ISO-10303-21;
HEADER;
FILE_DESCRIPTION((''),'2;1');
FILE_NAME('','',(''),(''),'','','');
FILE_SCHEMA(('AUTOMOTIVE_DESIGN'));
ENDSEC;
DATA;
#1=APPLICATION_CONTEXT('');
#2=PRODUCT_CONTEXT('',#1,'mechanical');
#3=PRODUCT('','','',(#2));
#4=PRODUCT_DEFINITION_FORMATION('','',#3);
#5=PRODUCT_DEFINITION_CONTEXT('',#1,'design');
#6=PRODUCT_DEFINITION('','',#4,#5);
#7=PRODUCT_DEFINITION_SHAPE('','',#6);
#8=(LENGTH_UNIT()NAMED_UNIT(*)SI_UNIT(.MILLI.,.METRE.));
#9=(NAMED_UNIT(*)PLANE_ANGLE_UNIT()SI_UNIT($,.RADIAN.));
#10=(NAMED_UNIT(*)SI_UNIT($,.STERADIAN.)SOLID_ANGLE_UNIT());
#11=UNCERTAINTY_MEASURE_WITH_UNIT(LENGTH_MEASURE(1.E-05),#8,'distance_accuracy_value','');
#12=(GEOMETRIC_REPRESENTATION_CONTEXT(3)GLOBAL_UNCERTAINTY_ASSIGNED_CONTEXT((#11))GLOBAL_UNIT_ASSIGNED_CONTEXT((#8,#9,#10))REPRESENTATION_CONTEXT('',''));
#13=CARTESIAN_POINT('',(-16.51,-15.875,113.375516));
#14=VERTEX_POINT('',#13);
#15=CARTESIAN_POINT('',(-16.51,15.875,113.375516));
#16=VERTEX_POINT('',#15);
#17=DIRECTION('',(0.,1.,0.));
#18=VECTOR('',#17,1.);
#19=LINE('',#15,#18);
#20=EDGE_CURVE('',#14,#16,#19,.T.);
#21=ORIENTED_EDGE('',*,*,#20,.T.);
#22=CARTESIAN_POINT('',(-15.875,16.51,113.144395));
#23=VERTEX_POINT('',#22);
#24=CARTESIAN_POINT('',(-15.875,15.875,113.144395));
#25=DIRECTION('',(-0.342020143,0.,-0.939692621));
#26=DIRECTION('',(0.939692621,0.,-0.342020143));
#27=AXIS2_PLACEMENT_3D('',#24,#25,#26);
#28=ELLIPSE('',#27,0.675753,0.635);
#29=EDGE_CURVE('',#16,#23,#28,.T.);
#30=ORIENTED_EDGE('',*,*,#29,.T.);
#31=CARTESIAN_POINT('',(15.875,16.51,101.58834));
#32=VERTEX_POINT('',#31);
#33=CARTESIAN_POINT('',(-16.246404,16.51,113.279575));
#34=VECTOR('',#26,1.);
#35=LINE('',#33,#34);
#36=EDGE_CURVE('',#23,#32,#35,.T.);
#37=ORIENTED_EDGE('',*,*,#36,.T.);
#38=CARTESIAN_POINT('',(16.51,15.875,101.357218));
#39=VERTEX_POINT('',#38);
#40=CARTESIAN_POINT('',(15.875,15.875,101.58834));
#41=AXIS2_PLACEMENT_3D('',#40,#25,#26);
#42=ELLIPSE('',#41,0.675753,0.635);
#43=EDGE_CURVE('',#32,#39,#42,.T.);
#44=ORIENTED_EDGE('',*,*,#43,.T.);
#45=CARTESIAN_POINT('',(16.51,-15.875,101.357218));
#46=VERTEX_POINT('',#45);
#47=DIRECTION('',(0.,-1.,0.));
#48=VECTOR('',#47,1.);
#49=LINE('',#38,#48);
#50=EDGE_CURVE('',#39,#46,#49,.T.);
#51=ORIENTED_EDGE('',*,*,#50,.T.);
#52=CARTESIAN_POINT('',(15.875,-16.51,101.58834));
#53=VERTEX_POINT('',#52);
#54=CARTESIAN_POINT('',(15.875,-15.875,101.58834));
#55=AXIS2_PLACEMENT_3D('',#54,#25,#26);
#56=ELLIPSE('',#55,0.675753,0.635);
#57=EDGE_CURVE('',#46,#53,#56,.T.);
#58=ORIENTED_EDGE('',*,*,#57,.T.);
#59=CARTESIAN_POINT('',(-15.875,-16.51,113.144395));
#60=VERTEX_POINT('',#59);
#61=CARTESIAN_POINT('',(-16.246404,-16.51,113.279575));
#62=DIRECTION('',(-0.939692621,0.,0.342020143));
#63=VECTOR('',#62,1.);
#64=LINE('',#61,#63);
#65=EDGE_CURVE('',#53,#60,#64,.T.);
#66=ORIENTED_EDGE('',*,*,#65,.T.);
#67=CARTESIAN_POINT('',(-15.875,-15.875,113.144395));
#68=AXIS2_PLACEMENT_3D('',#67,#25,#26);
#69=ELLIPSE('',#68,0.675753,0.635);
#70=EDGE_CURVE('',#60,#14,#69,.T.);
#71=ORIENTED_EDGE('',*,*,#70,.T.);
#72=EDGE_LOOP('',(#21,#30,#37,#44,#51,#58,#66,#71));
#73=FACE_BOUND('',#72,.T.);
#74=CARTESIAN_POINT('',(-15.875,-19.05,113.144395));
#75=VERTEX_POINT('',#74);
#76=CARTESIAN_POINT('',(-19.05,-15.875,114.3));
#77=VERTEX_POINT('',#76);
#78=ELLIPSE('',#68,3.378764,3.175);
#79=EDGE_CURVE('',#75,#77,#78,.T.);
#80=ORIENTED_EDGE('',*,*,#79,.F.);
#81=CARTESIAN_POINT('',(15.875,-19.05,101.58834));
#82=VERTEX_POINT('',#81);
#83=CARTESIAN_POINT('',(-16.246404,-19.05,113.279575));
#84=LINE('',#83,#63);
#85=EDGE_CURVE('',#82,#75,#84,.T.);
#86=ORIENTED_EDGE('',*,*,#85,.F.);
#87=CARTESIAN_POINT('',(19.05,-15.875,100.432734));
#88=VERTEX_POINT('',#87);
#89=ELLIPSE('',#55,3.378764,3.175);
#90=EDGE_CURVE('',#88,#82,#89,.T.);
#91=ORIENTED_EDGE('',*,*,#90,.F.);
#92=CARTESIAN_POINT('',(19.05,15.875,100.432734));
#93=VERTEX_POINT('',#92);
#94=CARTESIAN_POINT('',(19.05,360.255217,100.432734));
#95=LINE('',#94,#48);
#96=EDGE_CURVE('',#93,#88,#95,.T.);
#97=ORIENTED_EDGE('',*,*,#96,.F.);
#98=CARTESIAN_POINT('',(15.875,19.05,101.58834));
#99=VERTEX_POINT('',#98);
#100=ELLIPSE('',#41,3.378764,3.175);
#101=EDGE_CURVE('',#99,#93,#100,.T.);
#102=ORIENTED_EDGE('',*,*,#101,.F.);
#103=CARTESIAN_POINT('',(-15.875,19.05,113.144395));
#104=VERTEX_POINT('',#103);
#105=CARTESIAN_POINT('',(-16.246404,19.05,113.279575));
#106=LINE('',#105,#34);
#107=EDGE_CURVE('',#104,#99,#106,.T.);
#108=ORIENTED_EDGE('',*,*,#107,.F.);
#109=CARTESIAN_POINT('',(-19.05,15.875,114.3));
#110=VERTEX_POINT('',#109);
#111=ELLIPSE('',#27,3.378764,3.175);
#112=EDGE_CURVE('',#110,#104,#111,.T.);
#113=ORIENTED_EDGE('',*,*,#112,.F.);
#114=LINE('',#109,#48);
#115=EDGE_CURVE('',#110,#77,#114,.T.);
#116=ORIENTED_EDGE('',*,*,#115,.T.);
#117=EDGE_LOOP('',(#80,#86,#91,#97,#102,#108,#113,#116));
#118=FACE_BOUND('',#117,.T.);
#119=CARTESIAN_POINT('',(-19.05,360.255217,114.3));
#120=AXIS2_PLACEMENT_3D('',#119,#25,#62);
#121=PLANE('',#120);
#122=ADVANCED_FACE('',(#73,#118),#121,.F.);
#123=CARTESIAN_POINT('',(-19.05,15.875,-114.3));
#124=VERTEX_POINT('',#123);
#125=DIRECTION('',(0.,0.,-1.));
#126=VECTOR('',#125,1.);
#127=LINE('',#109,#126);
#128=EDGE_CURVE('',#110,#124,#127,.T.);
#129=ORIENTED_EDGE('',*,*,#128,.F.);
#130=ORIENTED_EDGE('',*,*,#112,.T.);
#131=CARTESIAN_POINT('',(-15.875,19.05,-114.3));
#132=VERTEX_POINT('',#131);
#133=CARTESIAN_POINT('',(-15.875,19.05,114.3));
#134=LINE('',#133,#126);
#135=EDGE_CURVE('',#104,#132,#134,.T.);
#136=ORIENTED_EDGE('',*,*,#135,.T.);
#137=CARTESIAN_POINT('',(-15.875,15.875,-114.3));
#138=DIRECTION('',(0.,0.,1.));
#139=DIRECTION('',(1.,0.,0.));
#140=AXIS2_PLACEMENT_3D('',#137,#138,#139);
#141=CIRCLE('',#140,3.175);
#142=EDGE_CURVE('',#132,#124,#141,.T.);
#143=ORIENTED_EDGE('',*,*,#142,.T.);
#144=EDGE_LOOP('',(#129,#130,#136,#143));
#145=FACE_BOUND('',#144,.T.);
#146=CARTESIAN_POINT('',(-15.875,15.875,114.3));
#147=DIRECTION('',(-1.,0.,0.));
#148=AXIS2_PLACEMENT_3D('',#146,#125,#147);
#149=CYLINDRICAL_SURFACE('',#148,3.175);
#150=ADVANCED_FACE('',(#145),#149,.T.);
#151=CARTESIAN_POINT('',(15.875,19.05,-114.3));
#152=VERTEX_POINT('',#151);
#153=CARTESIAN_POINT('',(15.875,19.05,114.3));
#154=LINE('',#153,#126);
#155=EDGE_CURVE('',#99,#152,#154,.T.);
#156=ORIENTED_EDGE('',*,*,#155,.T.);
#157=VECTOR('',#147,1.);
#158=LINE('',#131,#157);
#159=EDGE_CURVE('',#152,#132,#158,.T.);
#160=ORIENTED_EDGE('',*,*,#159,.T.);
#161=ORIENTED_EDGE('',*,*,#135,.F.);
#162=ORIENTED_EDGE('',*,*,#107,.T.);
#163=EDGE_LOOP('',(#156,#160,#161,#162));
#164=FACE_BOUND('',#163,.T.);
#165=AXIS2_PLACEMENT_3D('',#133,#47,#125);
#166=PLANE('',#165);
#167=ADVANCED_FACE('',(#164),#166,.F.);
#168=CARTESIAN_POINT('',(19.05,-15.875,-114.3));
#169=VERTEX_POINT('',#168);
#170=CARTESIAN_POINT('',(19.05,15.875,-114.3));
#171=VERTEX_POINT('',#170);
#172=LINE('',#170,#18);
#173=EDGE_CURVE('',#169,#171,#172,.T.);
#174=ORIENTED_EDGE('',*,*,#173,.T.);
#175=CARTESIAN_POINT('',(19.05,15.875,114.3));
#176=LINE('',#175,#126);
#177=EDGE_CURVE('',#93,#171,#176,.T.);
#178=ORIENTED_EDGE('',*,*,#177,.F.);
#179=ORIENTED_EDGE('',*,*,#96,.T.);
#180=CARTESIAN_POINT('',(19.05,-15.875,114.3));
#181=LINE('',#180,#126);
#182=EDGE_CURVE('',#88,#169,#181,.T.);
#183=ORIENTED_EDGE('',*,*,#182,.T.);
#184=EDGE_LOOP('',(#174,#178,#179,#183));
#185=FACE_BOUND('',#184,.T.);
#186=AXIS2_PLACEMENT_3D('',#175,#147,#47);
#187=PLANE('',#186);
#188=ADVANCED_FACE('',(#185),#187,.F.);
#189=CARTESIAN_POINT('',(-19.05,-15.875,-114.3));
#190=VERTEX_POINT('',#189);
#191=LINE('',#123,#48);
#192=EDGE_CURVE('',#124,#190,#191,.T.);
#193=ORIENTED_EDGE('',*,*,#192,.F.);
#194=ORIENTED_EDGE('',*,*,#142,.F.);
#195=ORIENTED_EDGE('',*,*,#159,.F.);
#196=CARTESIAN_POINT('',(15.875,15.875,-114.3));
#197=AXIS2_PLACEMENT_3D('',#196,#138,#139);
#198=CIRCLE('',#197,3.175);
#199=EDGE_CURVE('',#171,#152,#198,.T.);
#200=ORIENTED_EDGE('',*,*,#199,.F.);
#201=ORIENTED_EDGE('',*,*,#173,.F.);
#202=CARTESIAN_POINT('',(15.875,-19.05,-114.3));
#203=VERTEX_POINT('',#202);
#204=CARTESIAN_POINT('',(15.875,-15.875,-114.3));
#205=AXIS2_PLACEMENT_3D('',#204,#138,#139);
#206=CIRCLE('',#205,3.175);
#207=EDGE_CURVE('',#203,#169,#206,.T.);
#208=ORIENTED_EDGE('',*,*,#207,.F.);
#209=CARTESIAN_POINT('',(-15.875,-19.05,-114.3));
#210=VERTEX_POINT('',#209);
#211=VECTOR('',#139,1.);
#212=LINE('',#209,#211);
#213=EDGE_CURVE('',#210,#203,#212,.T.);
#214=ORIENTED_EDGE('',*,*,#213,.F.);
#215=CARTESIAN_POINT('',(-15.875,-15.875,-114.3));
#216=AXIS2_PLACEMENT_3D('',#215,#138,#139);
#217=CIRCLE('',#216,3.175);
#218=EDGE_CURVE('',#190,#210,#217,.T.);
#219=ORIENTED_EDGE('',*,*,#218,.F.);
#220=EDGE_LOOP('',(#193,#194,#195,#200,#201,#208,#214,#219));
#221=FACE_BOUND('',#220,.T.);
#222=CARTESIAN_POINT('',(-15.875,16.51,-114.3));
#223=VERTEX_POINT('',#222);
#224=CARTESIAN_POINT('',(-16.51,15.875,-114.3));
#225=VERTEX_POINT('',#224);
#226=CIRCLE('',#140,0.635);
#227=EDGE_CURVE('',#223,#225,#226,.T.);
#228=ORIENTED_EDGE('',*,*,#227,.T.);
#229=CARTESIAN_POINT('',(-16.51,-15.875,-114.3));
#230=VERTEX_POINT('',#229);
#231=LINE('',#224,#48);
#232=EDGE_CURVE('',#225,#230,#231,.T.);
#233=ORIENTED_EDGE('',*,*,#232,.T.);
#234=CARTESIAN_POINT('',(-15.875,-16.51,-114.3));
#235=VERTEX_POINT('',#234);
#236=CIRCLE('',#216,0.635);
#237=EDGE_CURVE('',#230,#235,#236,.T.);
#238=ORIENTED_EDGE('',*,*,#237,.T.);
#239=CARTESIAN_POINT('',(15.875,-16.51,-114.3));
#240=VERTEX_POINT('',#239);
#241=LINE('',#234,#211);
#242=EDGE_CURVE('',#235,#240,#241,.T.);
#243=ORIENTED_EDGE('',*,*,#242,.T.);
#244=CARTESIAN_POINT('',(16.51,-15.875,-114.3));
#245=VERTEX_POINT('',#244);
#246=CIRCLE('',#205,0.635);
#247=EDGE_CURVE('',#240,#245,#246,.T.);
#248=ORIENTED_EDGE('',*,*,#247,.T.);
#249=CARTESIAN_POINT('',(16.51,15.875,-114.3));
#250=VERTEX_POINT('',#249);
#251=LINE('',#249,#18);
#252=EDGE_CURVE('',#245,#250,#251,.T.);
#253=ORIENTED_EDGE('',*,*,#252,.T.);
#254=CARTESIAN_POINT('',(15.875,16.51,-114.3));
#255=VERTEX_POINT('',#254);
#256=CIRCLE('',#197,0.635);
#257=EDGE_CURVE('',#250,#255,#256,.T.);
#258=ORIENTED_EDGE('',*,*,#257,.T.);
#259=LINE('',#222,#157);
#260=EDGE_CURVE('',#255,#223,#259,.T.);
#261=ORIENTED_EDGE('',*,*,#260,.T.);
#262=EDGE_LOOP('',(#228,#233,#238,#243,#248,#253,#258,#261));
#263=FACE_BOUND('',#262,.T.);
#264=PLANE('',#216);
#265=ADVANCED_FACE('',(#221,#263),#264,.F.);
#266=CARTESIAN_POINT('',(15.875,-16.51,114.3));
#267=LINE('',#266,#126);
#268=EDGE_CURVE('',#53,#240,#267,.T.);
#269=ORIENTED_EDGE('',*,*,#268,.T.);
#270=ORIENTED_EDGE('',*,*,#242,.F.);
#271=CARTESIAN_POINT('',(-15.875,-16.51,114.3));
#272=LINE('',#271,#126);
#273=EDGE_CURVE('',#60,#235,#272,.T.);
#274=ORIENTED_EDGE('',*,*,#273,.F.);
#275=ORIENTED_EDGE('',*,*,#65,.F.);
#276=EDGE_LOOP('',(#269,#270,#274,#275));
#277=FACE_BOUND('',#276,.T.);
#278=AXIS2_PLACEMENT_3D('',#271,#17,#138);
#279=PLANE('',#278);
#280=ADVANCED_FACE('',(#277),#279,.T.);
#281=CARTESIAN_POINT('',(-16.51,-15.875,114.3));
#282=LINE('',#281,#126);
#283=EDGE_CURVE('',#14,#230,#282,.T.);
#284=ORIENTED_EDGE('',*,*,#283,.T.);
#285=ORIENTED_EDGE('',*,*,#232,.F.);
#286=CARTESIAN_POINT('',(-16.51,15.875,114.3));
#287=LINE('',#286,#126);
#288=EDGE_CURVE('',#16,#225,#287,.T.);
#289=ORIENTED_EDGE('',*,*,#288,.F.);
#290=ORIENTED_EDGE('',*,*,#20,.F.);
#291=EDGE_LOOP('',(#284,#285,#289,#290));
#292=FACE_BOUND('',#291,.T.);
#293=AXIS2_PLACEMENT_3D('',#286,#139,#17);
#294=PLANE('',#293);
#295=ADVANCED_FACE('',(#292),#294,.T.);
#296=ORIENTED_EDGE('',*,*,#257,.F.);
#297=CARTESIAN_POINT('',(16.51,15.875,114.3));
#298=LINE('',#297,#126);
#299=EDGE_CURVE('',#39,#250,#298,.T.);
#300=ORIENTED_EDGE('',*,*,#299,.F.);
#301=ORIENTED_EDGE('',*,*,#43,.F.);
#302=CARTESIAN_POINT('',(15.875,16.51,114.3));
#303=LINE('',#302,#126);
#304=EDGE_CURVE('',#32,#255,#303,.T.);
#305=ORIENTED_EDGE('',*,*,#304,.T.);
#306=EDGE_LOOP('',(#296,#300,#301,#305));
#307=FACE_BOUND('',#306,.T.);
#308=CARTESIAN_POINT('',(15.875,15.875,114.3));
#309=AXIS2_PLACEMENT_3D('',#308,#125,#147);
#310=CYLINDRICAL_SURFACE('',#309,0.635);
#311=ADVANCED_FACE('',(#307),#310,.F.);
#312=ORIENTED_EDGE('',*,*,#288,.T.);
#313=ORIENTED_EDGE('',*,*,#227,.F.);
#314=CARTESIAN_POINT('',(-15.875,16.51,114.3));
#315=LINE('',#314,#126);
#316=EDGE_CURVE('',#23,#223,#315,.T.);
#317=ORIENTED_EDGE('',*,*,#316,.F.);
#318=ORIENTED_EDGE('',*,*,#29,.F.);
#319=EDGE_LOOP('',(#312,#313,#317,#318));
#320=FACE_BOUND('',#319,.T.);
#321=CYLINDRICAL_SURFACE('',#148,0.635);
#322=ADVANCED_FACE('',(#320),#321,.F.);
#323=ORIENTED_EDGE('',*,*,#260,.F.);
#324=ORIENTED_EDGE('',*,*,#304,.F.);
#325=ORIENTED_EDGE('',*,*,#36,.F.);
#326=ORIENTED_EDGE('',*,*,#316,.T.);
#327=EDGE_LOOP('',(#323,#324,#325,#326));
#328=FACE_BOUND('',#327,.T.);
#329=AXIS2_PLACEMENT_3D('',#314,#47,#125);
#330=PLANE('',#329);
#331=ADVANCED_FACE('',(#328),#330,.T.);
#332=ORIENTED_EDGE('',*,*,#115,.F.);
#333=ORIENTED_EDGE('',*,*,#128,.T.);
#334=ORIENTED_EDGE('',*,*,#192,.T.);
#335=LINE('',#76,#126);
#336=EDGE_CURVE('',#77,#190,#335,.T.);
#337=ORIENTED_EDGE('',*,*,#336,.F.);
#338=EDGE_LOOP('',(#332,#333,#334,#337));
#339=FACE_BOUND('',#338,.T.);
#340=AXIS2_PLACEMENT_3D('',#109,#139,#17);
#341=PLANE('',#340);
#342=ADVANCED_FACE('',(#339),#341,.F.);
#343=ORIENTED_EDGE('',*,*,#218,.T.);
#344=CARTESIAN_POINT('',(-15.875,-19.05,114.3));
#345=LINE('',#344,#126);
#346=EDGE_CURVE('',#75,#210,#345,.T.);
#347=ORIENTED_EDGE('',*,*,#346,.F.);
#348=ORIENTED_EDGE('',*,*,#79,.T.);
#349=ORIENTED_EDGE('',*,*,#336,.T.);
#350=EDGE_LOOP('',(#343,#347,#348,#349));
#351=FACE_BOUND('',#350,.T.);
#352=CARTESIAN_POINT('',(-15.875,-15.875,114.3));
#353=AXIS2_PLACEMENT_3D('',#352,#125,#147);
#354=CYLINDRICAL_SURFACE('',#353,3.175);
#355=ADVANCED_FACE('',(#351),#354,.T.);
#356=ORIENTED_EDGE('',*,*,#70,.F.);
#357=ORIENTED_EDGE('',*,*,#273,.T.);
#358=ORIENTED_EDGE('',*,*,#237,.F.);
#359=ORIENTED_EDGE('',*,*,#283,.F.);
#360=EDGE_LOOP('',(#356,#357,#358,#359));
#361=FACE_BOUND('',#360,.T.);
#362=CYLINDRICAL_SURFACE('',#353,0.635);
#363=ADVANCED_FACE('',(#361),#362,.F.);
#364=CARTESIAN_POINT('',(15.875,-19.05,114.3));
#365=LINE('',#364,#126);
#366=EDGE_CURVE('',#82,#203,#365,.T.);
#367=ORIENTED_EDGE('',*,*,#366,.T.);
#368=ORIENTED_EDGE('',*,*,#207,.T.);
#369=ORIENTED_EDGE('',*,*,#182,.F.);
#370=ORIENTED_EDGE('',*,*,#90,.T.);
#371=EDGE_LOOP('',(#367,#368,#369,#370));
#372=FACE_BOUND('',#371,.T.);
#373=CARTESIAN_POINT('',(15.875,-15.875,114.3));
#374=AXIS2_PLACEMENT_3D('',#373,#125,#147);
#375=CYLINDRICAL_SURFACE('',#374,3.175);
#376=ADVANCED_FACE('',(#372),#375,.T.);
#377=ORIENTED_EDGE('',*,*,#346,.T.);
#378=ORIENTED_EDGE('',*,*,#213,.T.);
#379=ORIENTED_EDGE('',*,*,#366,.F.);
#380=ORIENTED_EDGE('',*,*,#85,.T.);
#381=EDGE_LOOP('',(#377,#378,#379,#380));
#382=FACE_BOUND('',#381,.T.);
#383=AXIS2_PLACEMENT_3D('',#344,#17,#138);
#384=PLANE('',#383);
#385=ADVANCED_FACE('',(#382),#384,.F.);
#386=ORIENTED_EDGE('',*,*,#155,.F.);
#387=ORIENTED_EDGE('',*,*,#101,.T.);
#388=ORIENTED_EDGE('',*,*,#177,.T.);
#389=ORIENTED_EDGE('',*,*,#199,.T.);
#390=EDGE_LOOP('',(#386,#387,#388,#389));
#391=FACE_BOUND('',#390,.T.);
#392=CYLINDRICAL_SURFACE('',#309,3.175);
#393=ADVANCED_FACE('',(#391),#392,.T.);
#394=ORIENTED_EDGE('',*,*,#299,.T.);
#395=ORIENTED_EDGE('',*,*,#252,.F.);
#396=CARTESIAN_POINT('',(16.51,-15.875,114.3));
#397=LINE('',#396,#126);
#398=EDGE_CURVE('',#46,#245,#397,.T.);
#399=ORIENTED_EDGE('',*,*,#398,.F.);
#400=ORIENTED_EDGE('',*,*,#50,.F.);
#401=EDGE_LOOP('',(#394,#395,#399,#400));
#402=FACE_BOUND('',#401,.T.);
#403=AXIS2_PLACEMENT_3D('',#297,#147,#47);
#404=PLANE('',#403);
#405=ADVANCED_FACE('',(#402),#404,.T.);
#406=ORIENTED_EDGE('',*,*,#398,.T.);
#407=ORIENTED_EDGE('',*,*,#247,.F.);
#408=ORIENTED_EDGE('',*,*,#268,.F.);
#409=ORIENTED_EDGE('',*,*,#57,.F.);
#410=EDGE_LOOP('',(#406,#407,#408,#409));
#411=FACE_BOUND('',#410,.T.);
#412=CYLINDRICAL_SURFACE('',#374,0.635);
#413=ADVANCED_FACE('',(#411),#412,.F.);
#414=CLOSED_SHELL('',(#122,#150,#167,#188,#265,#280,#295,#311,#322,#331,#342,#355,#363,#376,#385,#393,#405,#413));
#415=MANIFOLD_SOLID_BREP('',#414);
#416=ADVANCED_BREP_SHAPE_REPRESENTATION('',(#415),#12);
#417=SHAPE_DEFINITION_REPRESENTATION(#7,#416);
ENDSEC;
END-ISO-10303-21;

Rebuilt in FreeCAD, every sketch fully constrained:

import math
import FreeCAD as App
import Part
import Sketcher
Q = App.Units.Quantity

doc = App.newDocument("Part")
body = doc.addObject("PartDesign::Body", "Body")

# Sketch on XY plane
sketch1 = doc.addObject("Sketcher::SketchObject", "Sketch")
body.addObject(sketch1)
sketch1.AttachmentSupport = (doc.XY_Plane, [""])
sketch1.MapMode = "FlatFace"
sketch1.addGeometry([
    Part.LineSegment(App.Vector(15.9, 19.1, 0), App.Vector(-15.9, 19.1, 0)),  # 0
    Part.ArcOfCircle(Part.Circle(App.Vector(-15.9, 15.9, 0), App.Vector(0, 0, 1), 3.2), math.radians(90), math.radians(180)),  # 1
    Part.LineSegment(App.Vector(-19.1, 15.9, 0), App.Vector(-19.1, -15.9, 0)),  # 2
    Part.ArcOfCircle(Part.Circle(App.Vector(-15.9, -15.9, 0), App.Vector(0, 0, 1), 3.2), math.radians(-180), math.radians(-90)),  # 3
    Part.LineSegment(App.Vector(-15.9, -19.1, 0), App.Vector(15.9, -19.1, 0)),  # 4
    Part.ArcOfCircle(Part.Circle(App.Vector(15.9, -15.9, 0), App.Vector(0, 0, 1), 3.2), math.radians(-90), math.radians(0)),  # 5
    Part.LineSegment(App.Vector(19.1, -15.9, 0), App.Vector(19.1, 15.9, 0)),  # 6
    Part.ArcOfCircle(Part.Circle(App.Vector(15.9, 15.9, 0), App.Vector(0, 0, 1), 3.2), math.radians(0), math.radians(90)),  # 7
    Part.LineSegment(App.Vector(-15.9, 16.5, 0), App.Vector(15.9, 16.5, 0)),  # 8
    Part.ArcOfCircle(Part.Circle(App.Vector(15.9, 15.9, 0), App.Vector(0, 0, 1), 0.6), math.radians(0), math.radians(90)),  # 9
    Part.LineSegment(App.Vector(16.5, 15.9, 0), App.Vector(16.5, -15.9, 0)),  # 10
    Part.ArcOfCircle(Part.Circle(App.Vector(15.9, -15.9, 0), App.Vector(0, 0, 1), 0.6), math.radians(-90), math.radians(0)),  # 11
    Part.LineSegment(App.Vector(15.9, -16.5, 0), App.Vector(-15.9, -16.5, 0)),  # 12
    Part.ArcOfCircle(Part.Circle(App.Vector(-15.9, -15.9, 0), App.Vector(0, 0, 1), 0.6), math.radians(180), math.radians(270)),  # 13
    Part.LineSegment(App.Vector(-16.5, -15.9, 0), App.Vector(-16.5, 15.9, 0)),  # 14
    Part.ArcOfCircle(Part.Circle(App.Vector(-15.9, 15.9, 0), App.Vector(0, 0, 1), 0.6), math.radians(90), math.radians(180)),  # 15
], False)
sketch1.addConstraint([
    Sketcher.Constraint("Tangent", 0, 2, 1, 1),
    Sketcher.Constraint("Tangent", 1, 2, 2, 1),
    Sketcher.Constraint("Tangent", 2, 2, 3, 1),
    Sketcher.Constraint("Tangent", 3, 2, 4, 1),
    Sketcher.Constraint("Tangent", 4, 2, 5, 1),
    Sketcher.Constraint("Tangent", 5, 2, 6, 1),
    Sketcher.Constraint("Tangent", 6, 2, 7, 1),
    Sketcher.Constraint("Tangent", 7, 2, 0, 1),
    Sketcher.Constraint("Tangent", 8, 2, 9, 2),
    Sketcher.Constraint("Tangent", 9, 1, 10, 1),
    Sketcher.Constraint("Tangent", 10, 2, 11, 2),
    Sketcher.Constraint("Tangent", 11, 1, 12, 1),
    Sketcher.Constraint("Tangent", 12, 2, 13, 2),
    Sketcher.Constraint("Tangent", 13, 1, 14, 1),
    Sketcher.Constraint("Tangent", 14, 2, 15, 2),
    Sketcher.Constraint("Tangent", 15, 1, 8, 1),
    Sketcher.Constraint("Horizontal", 0),
    Sketcher.Constraint("Vertical", 2),
    Sketcher.Constraint("Horizontal", 4),
    Sketcher.Constraint("Vertical", 6),
    Sketcher.Constraint("Horizontal", 8),
    Sketcher.Constraint("Vertical", 10),
    Sketcher.Constraint("Horizontal", 12),
    Sketcher.Constraint("Vertical", 14),
    Sketcher.Constraint("Coincident", 9, 3, 7, 3),
    Sketcher.Constraint("Coincident", 11, 3, 5, 3),
    Sketcher.Constraint("Coincident", 13, 3, 3, 3),
    Sketcher.Constraint("Equal", 1, 3),
    Sketcher.Constraint("Equal", 3, 5),
    Sketcher.Constraint("Equal", 5, 7),
    Sketcher.Constraint("Equal", 13, 15),
    Sketcher.Constraint("Symmetric", 1, 3, 5, 3, -1, 1),
    Sketcher.Constraint("Equal", 12, 2),
    Sketcher.Constraint("Radius", 1, Q("0.125 in")),
    Sketcher.Constraint("Radius", 9, Q("0.025 in")),
    Sketcher.Constraint("DistanceX", 0, 2, 0, 1, Q("1.25 in")),
])
pad1 = doc.addObject("PartDesign::Pad", "Pad")
body.addObject(pad1)
pad1.Profile = sketch1
pad1.Length = Q("9 in")
pad1.Midplane = True

# Sketch on XZ plane
sketch2 = doc.addObject("Sketcher::SketchObject", "Sketch001")
body.addObject(sketch2)
sketch2.AttachmentSupport = (doc.XZ_Plane, [""])
sketch2.MapMode = "FlatFace"
sketch2.AttachmentOffset = App.Placement(App.Vector(0, 0, -0.75 * 25.4), App.Rotation())
sketch2.addGeometry([
    Part.LineSegment(App.Vector(-19, 114, 0), App.Vector(-464, 276, 0)),  # 0
    Part.LineSegment(App.Vector(-464, 276, 0), App.Vector(-140, 1166, 0)),  # 1
    Part.LineSegment(App.Vector(-140, 1166, 0), App.Vector(788, 828, 0)),  # 2
    Part.LineSegment(App.Vector(788, 828, 0), App.Vector(464, -62, 0)),  # 3
    Part.LineSegment(App.Vector(464, -62, 0), App.Vector(19, 100, 0)),  # 4
    Part.LineSegment(App.Vector(19, 100, 0), App.Vector(-19, 114, 0)),  # 5
], False)
sketch2.addConstraint([
    Sketcher.Constraint("Coincident", 0, 2, 1, 1),
    Sketcher.Constraint("Coincident", 1, 2, 2, 1),
    Sketcher.Constraint("Coincident", 2, 2, 3, 1),
    Sketcher.Constraint("Coincident", 3, 2, 4, 1),
    Sketcher.Constraint("Coincident", 4, 2, 5, 1),
    Sketcher.Constraint("Coincident", 5, 2, 0, 1),
    Sketcher.Constraint("Perpendicular", 0, 1),
    Sketcher.Constraint("Perpendicular", 1, 2),
    Sketcher.Constraint("Perpendicular", 2, 3),
    Sketcher.Constraint("Perpendicular", 3, 4),
    Sketcher.Constraint("Parallel", 4, 5),
    Sketcher.Constraint("Equal", 0, 4),
    Sketcher.Constraint("Angle", 0, Q("160 deg")),
    Sketcher.Constraint("DistanceY", -1, 1, 5, 2, Q("4.5 in")),
    Sketcher.Constraint("DistanceX", 5, 2, 4, 2, Q("1.5 in")),
    Sketcher.Constraint("DistanceX", -1, 1, 4, 2, Q("0.75 in")),
    Sketcher.Constraint("DistanceY", -1, 1, 1, 2, Q("1166.1499 mm")),
    Sketcher.Constraint("Distance", 1, Q("947.01301 mm")),
])
pocket1 = doc.addObject("PartDesign::Pocket", "Pocket")
body.addObject(pocket1)
pocket1.Profile = sketch2
pocket1.Type = "ThroughAll"
pocket1.Midplane = True

doc.recompute()
